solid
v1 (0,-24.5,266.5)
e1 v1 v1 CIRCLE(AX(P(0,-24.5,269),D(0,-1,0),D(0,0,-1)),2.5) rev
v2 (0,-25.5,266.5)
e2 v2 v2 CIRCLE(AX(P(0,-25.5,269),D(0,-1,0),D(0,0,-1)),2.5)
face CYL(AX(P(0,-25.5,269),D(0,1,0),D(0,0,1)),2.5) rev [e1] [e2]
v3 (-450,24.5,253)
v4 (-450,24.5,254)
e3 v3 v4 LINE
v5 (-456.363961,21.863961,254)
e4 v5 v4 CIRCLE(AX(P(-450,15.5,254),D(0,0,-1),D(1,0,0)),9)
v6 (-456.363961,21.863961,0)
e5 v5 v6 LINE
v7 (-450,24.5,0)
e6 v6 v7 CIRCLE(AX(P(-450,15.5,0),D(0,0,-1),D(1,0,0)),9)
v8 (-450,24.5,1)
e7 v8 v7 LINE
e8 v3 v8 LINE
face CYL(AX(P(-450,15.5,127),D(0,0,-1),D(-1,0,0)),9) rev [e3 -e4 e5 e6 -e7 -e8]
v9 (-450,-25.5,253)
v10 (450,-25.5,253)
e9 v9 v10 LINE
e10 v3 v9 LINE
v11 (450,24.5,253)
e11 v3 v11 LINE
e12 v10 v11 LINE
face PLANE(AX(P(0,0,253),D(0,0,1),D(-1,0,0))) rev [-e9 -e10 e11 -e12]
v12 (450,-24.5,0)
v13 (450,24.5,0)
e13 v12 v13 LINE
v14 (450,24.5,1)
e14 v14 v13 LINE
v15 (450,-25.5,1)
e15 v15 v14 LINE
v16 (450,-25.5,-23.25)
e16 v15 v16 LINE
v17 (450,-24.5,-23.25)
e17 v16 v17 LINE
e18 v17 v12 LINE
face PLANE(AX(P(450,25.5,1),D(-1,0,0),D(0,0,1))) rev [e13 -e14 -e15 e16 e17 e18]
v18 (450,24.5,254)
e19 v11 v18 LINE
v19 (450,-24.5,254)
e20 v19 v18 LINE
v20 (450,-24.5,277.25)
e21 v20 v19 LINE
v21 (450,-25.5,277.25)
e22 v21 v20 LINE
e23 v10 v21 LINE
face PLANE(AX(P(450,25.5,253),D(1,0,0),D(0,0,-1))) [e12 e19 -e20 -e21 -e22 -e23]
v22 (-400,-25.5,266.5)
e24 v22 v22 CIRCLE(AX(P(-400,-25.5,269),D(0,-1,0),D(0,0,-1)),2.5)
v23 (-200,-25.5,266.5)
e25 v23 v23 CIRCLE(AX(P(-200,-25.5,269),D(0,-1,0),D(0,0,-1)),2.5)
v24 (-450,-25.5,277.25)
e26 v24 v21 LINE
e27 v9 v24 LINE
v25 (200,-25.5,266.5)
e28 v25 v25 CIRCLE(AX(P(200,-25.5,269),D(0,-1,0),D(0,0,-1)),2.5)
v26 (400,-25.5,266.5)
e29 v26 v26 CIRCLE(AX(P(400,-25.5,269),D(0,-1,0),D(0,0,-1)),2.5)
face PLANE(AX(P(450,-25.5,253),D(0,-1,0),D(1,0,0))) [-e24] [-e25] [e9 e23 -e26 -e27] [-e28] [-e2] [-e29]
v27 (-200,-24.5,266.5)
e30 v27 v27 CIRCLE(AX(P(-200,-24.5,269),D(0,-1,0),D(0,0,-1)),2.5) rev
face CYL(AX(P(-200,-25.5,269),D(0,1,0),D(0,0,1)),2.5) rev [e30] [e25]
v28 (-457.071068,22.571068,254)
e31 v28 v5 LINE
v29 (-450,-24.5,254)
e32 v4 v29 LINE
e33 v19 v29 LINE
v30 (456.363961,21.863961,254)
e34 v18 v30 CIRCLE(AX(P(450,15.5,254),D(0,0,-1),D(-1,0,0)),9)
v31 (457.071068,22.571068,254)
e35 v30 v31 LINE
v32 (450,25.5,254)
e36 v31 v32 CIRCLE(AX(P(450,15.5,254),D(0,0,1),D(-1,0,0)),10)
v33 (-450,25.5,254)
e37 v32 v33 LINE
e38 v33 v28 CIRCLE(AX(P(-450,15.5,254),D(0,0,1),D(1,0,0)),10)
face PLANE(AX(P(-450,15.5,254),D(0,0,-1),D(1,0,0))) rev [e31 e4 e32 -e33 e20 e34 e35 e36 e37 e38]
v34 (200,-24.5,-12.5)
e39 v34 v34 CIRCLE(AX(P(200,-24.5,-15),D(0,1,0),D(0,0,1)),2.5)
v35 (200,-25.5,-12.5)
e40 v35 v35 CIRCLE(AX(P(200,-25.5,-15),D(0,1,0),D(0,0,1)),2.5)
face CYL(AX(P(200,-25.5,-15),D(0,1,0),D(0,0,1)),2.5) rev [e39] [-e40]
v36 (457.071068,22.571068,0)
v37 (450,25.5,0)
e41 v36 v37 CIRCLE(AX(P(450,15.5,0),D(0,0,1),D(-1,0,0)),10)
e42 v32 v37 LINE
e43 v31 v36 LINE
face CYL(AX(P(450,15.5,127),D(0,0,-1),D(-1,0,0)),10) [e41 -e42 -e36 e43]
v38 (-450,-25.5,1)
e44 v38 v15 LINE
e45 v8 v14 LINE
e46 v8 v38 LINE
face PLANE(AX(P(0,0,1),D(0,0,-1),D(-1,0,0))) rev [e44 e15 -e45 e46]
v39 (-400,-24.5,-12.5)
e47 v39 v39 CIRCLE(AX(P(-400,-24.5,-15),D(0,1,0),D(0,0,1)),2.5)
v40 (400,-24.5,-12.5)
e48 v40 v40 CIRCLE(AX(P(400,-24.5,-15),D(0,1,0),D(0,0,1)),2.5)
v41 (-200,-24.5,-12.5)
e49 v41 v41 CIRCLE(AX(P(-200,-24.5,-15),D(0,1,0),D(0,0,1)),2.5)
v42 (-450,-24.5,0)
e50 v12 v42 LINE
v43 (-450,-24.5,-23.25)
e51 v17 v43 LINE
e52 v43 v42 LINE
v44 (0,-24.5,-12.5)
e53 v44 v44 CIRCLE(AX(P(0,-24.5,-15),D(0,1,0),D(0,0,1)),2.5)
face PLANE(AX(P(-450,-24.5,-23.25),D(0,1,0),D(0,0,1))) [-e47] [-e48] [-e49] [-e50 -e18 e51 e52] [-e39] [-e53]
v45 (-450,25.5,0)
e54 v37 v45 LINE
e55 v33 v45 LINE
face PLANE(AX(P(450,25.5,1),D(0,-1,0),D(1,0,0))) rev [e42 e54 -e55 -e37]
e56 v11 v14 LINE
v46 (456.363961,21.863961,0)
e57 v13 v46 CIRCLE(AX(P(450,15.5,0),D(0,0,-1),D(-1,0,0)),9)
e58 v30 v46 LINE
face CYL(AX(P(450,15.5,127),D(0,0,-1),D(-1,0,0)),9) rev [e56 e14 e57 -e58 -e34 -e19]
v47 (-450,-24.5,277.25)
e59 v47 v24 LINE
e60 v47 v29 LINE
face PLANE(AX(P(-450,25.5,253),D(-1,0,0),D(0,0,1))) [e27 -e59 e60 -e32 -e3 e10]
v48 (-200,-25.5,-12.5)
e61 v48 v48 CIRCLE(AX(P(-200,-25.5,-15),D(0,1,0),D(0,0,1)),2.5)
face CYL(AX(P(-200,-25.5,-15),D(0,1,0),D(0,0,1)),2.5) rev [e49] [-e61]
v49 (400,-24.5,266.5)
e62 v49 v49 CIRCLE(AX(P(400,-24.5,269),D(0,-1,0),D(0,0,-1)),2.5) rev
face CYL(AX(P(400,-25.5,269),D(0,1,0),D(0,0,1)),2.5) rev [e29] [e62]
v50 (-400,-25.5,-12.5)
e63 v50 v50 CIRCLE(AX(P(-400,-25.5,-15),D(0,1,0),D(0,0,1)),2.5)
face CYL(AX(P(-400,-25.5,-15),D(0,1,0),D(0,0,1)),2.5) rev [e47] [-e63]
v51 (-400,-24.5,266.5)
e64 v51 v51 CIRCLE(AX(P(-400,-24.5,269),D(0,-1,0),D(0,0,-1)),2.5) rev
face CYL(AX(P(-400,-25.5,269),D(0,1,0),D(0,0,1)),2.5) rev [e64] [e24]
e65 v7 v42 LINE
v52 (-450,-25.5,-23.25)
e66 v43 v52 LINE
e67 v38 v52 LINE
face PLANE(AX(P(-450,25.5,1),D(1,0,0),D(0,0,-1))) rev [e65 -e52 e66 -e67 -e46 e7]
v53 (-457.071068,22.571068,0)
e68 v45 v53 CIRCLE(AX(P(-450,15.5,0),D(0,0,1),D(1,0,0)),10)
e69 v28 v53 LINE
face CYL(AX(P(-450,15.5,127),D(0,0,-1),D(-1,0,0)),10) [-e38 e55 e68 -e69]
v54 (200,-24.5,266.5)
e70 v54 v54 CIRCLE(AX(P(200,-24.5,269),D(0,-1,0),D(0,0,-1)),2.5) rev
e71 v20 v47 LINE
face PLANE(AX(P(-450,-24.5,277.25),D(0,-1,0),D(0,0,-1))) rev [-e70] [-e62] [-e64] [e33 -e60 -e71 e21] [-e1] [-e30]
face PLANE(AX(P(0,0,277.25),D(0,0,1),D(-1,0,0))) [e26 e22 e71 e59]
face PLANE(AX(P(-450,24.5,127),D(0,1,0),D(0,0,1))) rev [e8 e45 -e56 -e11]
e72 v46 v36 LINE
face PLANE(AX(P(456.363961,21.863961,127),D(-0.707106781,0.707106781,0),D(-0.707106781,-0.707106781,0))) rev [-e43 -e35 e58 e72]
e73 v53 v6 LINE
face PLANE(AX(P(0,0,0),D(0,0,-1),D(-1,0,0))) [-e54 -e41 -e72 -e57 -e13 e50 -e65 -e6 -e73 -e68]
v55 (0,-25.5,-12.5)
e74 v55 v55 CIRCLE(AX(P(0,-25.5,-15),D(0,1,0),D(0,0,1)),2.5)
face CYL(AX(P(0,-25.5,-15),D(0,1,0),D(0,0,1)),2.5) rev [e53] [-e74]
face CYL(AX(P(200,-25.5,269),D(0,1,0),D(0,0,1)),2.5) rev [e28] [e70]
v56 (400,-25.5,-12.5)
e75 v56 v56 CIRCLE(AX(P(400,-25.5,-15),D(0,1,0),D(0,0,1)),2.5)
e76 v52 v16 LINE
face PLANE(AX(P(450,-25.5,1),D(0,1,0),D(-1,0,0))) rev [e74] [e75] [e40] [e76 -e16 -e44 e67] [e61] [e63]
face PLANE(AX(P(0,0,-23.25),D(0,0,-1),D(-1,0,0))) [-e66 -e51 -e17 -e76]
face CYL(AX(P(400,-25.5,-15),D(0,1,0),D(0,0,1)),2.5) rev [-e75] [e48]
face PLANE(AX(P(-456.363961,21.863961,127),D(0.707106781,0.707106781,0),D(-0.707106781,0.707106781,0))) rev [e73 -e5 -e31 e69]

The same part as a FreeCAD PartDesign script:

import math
import FreeCAD as App
import Part
import Sketcher

V = App.Vector
Q = App.Units.Quantity


def add_polygon(sketch, points):
    """Adds a closed chain of lines whose ends are joined by coincident constraints."""
    first, n = sketch.GeometryCount, len(points)
    for a, b in zip(points, points[1:] + points[:1]):
        sketch.addGeometry(Part.LineSegment(App.Vector(*a, 0), App.Vector(*b, 0)), False)
    for i in range(n):
        sketch.addConstraint(Sketcher.Constraint("Coincident", first + i, 2, first + (i + 1) % n, 1))

doc = App.newDocument("Part")
body = doc.addObject("PartDesign::Body", "Body")

# Sketch on XY plane
sketch1 = body.newObject("Sketcher::SketchObject", "Sketch")
sketch1.AttachmentSupport = (doc.getObject("XY_Plane"), [""])
sketch1.MapMode = "FlatFace"
add_polygon(sketch1, [(-450, 26), (-450, -26), (450, -26), (450, 26)])  # lines 0-3
sketch1.addConstraint(Sketcher.Constraint("Vertical", 0))
sketch1.addConstraint(Sketcher.Constraint("Horizontal", 1))
sketch1.addConstraint(Sketcher.Constraint("Vertical", 2))
sketch1.addConstraint(Sketcher.Constraint("Horizontal", 3))
sketch1.addConstraint(Sketcher.Constraint("Symmetric", 0, 2, 2, 2, -1, 1))
sketch1.addConstraint(Sketcher.Constraint("DistanceX", 1, 1, 1, 2, Q("900 mm")))
sketch1.addConstraint(Sketcher.Constraint("DistanceY", 0, 2, 0, 1, Q("51 mm")))
pad1 = body.newObject("PartDesign::Pad", "Pad")
pad1.Profile = sketch1
pad1.Length = 1

# Sketch on XY plane
sketch2 = body.newObject("Sketcher::SketchObject", "Sketch001")
sketch2.AttachmentSupport = (doc.getObject("XY_Plane"), [""])
sketch2.MapMode = "FlatFace"
add_polygon(sketch2, [(-450, -24.5), (-450, -25.5), (450, -25.5), (450, -24.5)])  # lines 0-3
sketch2.addConstraint(Sketcher.Constraint("Vertical", 0))
sketch2.addConstraint(Sketcher.Constraint("Horizontal", 1))
sketch2.addConstraint(Sketcher.Constraint("Vertical", 2))
sketch2.addConstraint(Sketcher.Constraint("Horizontal", 3))
sketch2.addConstraint(Sketcher.Constraint("DistanceX", 1, 1, 1, 2, Q("900 mm")))
sketch2.addConstraint(Sketcher.Constraint("DistanceY", 0, 2, 0, 1, Q("1 mm")))
sketch2.addConstraint(Sketcher.Constraint("DistanceX", 0, 2, -1, 1, Q("450 mm")))
sketch2.addConstraint(Sketcher.Constraint("DistanceY", 0, 2, -1, 1, Q("25.5 mm")))
pad2 = body.newObject("PartDesign::Pad", "Pad001")
pad2.Profile = sketch2
pad2.Length = 23.25
pad2.Reversed = True

# Sketch on XY plane
sketch3 = body.newObject("Sketcher::SketchObject", "Sketch002")
sketch3.AttachmentSupport = (doc.getObject("XY_Plane"), [""])
sketch3.MapMode = "FlatFace"
sketch3.AttachmentOffset = App.Placement(V(0, 0, 1), App.Rotation())
add_polygon(sketch3, [(-450, 25.5), (-450, 24.5), (450, 24.5), (450, 25.5)])  # lines 0-3
sketch3.addConstraint(Sketcher.Constraint("Vertical", 0))
sketch3.addConstraint(Sketcher.Constraint("Horizontal", 1))
sketch3.addConstraint(Sketcher.Constraint("Vertical", 2))
sketch3.addConstraint(Sketcher.Constraint("Horizontal", 3))
sketch3.addConstraint(Sketcher.Constraint("DistanceX", 1, 1, 1, 2, Q("900 mm")))
sketch3.addConstraint(Sketcher.Constraint("DistanceY", 0, 2, 0, 1, Q("1 mm")))
sketch3.addConstraint(Sketcher.Constraint("DistanceX", 0, 2, -1, 1, Q("450 mm")))
sketch3.addConstraint(Sketcher.Constraint("DistanceY", -1, 1, 0, 2, Q("24.5 mm")))
pad3 = body.newObject("PartDesign::Pad", "Pad002")
pad3.Profile = sketch3
pad3.Length = 126

# Sketch on XZ plane
sketch4 = body.newObject("Sketcher::SketchObject", "Sketch003")
sketch4.AttachmentSupport = (doc.getObject("XZ_Plane"), [""])
sketch4.MapMode = "FlatFace"
sketch4.addGeometry(Part.Circle(V(400, -15, 0), V(0, 0, 1), 2.5), False)
sketch4.addConstraint(Sketcher.Constraint("Diameter", 0, Q("5 mm")))
sketch4.addConstraint(Sketcher.Constraint("DistanceX", -1, 1, 0, 3, Q("400 mm")))
sketch4.addConstraint(Sketcher.Constraint("DistanceY", 0, 3, -1, 1, Q("15 mm")))
pocket1 = body.newObject("PartDesign::Pocket", "Pocket")
pocket1.Profile = sketch4
pocket1.Length = 938.545247
pocket1.Midplane = True
doc.recompute()

linearpattern = body.newObject("PartDesign::LinearPattern", "LinearPattern")
linearpattern.Originals = [pocket1]
linearpattern.Direction = (doc.getObject("X_Axis"), [""])
linearpattern.Mode = "offset"
linearpattern.Offset = 200
linearpattern.Occurrences = 6
linearpattern.Reversed = True
body.Tip = linearpattern

# Sketch on XY plane
sketch5 = body.newObject("Sketcher::SketchObject", "Sketch004")
sketch5.AttachmentSupport = (doc.getObject("XY_Plane"), [""])
sketch5.MapMode = "FlatFace"
sketch5.addGeometry(Part.LineSegment(V(-450, 24.5, 0), V(-450, 25.5, 0)), False)
sketch5.addGeometry(Part.ArcOfCircle(Part.Circle(V(-450, 15.5, 0), V(0, 0, 1), 10), math.radians(90), math.radians(135)), False)
sketch5.addGeometry(Part.LineSegment(V(-457.1, 22.6, 0), V(-456.4, 21.9, 0)), False)
sketch5.addGeometry(Part.ArcOfCircle(Part.Circle(V(-450, 15.5, 0), V(0, 0, 1), 9), math.radians(90), math.radians(135)), False)
sketch5.addConstraint(Sketcher.Constraint("Coincident", 0, 2, 1, 1))
sketch5.addConstraint(Sketcher.Constraint("Coincident", 1, 2, 2, 1))
sketch5.addConstraint(Sketcher.Constraint("Coincident", 2, 2, 3, 2))
sketch5.addConstraint(Sketcher.Constraint("Coincident", 3, 1, 0, 1))
sketch5.addConstraint(Sketcher.Constraint("Vertical", 0))
sketch5.addConstraint(Sketcher.Constraint("Coincident", 3, 3, 1, 3))
sketch5.addConstraint(Sketcher.Constraint("Vertical", 3, 3, 0, 2))
sketch5.addConstraint(Sketcher.Constraint("Radius", 1, Q("10 mm")))
sketch5.addConstraint(Sketcher.Constraint("Radius", 3, Q("9 mm")))
sketch5.addConstraint(Sketcher.Constraint("Angle", 2, Q("-45 deg")))
sketch5.addConstraint(Sketcher.Constraint("DistanceX", 1, 3, -1, 1, Q("450 mm")))
sketch5.addConstraint(Sketcher.Constraint("DistanceY", -1, 1, 1, 3, Q("15.5 mm")))
sketch5.addConstraint(Sketcher.Constraint("DistanceX", 2, 2, -1, 1, Q("456.363961 mm")))
pad4 = body.newObject("PartDesign::Pad", "Pad003")
pad4.Profile = sketch5
pad4.Length = 127

# Sketch on XY plane
sketch6 = body.newObject("Sketcher::SketchObject", "Sketch005")
sketch6.AttachmentSupport = (doc.getObject("XY_Plane"), [""])
sketch6.MapMode = "FlatFace"
sketch6.addGeometry(Part.LineSegment(V(456.4, 21.9, 0), V(457.1, 22.6, 0)), False)
sketch6.addGeometry(Part.ArcOfCircle(Part.Circle(V(450, 15.5, 0), V(0, 0, 1), 10), math.radians(45), math.radians(90)), False)
sketch6.addGeometry(Part.LineSegment(V(450, 25.5, 0), V(450, 24.5, 0)), False)
sketch6.addGeometry(Part.ArcOfCircle(Part.Circle(V(450, 15.5, 0), V(0, 0, 1), 9), math.radians(45), math.radians(90)), False)
sketch6.addConstraint(Sketcher.Constraint("Coincident", 0, 2, 1, 1))
sketch6.addConstraint(Sketcher.Constraint("Coincident", 1, 2, 2, 1))
sketch6.addConstraint(Sketcher.Constraint("Coincident", 2, 2, 3, 2))
sketch6.addConstraint(Sketcher.Constraint("Coincident", 3, 1, 0, 1))
sketch6.addConstraint(Sketcher.Constraint("Vertical", 2))
sketch6.addConstraint(Sketcher.Constraint("Coincident", 3, 3, 1, 3))
sketch6.addConstraint(Sketcher.Constraint("Vertical", 3, 3, 1, 2))
sketch6.addConstraint(Sketcher.Constraint("Radius", 1, Q("10 mm")))
sketch6.addConstraint(Sketcher.Constraint("Radius", 3, Q("9 mm")))
sketch6.addConstraint(Sketcher.Constraint("Angle", 0, Q("45 deg")))
sketch6.addConstraint(Sketcher.Constraint("DistanceX", -1, 1, 1, 3, Q("450 mm")))
sketch6.addConstraint(Sketcher.Constraint("DistanceY", -1, 1, 1, 3, Q("15.5 mm")))
sketch6.addConstraint(Sketcher.Constraint("DistanceX", -1, 1, 3, 1, Q("456.363961 mm")))
pad5 = body.newObject("PartDesign::Pad", "Pad004")
pad5.Profile = sketch6
pad5.Length = 127
doc.recompute()

datumplane = body.newObject("PartDesign::Plane", "DatumPlane")
datumplane.AttachmentSupport = (doc.getObject("XY_Plane"), [""])
datumplane.MapMode = "FlatFace"
datumplane.AttachmentOffset = App.Placement(V(0, 0, 127), App.Rotation())
mirrored = body.newObject("PartDesign::Mirrored", "Mirrored")
mirrored.Originals = [pad3, pad4, pad5]
mirrored.MirrorPlane = (datumplane, [""])
body.Tip = mirrored
doc.recompute()

datumplane2 = body.newObject("PartDesign::Plane", "DatumPlane001")
datumplane2.AttachmentSupport = (doc.getObject("XY_Plane"), [""])
datumplane2.MapMode = "FlatFace"
datumplane2.AttachmentOffset = App.Placement(V(0, 0, 127), App.Rotation())
mirrored2 = body.newObject("PartDesign::Mirrored", "Mirrored001")
mirrored2.Originals = [pad1, pad2, pocket1]
mirrored2.MirrorPlane = (datumplane2, [""])
body.Tip = mirrored2

# Sketch on XZ plane
sketch7 = body.newObject("Sketcher::SketchObject", "Sketch006")
sketch7.AttachmentSupport = (doc.getObject("XZ_Plane"), [""])
sketch7.MapMode = "FlatFace"
sketch7.addGeometry(Part.Circle(V(200, 269, 0), V(0, 0, 1), 2.5), False)
sketch7.addConstraint(Sketcher.Constraint("Diameter", 0, Q("5 mm")))
sketch7.addConstraint(Sketcher.Constraint("DistanceX", -1, 1, 0, 3, Q("200 mm")))
sketch7.addConstraint(Sketcher.Constraint("DistanceY", -1, 1, 0, 3, Q("269 mm")))
pocket2 = body.newObject("PartDesign::Pocket", "Pocket001")
pocket2.Profile = sketch7
pocket2.Length = 938.545247
pocket2.Midplane = True

# Sketch on XZ plane
sketch8 = body.newObject("Sketcher::SketchObject", "Sketch007")
sketch8.AttachmentSupport = (doc.getObject("XZ_Plane"), [""])
sketch8.MapMode = "FlatFace"
sketch8.addGeometry(Part.Circle(V(0, 269, 0), V(0, 0, 1), 2.5), False)
sketch8.addConstraint(Sketcher.Constraint("PointOnObject", 0, 3, -2))
sketch8.addConstraint(Sketcher.Constraint("Diameter", 0, Q("5 mm")))
sketch8.addConstraint(Sketcher.Constraint("DistanceY", -1, 1, 0, 3, Q("269 mm")))
pocket3 = body.newObject("PartDesign::Pocket", "Pocket002")
pocket3.Profile = sketch8
pocket3.Length = 938.545247
pocket3.Midplane = True

# Sketch on XZ plane
sketch9 = body.newObject("Sketcher::SketchObject", "Sketch008")
sketch9.AttachmentSupport = (doc.getObject("XZ_Plane"), [""])
sketch9.MapMode = "FlatFace"
sketch9.addGeometry(Part.Circle(V(-200, 269, 0), V(0, 0, 1), 2.5), False)
sketch9.addConstraint(Sketcher.Constraint("Diameter", 0, Q("5 mm")))
sketch9.addConstraint(Sketcher.Constraint("DistanceX", 0, 3, -1, 1, Q("200 mm")))
sketch9.addConstraint(Sketcher.Constraint("DistanceY", -1, 1, 0, 3, Q("269 mm")))
pocket4 = body.newObject("PartDesign::Pocket", "Pocket003")
pocket4.Profile = sketch9
pocket4.Length = 938.545247
pocket4.Midplane = True

# Sketch on XZ plane
sketch10 = body.newObject("Sketcher::SketchObject", "Sketch009")
sketch10.AttachmentSupport = (doc.getObject("XZ_Plane"), [""])
sketch10.MapMode = "FlatFace"
sketch10.addGeometry(Part.Circle(V(-400, 269, 0), V(0, 0, 1), 2.5), False)
sketch10.addConstraint(Sketcher.Constraint("Diameter", 0, Q("5 mm")))
sketch10.addConstraint(Sketcher.Constraint("DistanceX", 0, 3, -1, 1, Q("400 mm")))
sketch10.addConstraint(Sketcher.Constraint("DistanceY", -1, 1, 0, 3, Q("269 mm")))
pocket5 = body.newObject("PartDesign::Pocket", "Pocket004")
pocket5.Profile = sketch10
pocket5.Length = 938.545247
pocket5.Midplane = True

# Sketch on XZ plane
sketch11 = body.newObject("Sketcher::SketchObject", "Sketch010")
sketch11.AttachmentSupport = (doc.getObject("XZ_Plane"), [""])
sketch11.MapMode = "FlatFace"
sketch11.addGeometry(Part.Circle(V(-600, 269, 0), V(0, 0, 1), 2.5), False)
sketch11.addConstraint(Sketcher.Constraint("Diameter", 0, Q("5 mm")))
sketch11.addConstraint(Sketcher.Constraint("DistanceX", 0, 3, -1, 1, Q("600 mm")))
sketch11.addConstraint(Sketcher.Constraint("DistanceY", -1, 1, 0, 3, Q("269 mm")))
pocket6 = body.newObject("PartDesign::Pocket", "Pocket005")
pocket6.Profile = sketch11
pocket6.Length = 938.545247
pocket6.Midplane = True

doc.recompute()
